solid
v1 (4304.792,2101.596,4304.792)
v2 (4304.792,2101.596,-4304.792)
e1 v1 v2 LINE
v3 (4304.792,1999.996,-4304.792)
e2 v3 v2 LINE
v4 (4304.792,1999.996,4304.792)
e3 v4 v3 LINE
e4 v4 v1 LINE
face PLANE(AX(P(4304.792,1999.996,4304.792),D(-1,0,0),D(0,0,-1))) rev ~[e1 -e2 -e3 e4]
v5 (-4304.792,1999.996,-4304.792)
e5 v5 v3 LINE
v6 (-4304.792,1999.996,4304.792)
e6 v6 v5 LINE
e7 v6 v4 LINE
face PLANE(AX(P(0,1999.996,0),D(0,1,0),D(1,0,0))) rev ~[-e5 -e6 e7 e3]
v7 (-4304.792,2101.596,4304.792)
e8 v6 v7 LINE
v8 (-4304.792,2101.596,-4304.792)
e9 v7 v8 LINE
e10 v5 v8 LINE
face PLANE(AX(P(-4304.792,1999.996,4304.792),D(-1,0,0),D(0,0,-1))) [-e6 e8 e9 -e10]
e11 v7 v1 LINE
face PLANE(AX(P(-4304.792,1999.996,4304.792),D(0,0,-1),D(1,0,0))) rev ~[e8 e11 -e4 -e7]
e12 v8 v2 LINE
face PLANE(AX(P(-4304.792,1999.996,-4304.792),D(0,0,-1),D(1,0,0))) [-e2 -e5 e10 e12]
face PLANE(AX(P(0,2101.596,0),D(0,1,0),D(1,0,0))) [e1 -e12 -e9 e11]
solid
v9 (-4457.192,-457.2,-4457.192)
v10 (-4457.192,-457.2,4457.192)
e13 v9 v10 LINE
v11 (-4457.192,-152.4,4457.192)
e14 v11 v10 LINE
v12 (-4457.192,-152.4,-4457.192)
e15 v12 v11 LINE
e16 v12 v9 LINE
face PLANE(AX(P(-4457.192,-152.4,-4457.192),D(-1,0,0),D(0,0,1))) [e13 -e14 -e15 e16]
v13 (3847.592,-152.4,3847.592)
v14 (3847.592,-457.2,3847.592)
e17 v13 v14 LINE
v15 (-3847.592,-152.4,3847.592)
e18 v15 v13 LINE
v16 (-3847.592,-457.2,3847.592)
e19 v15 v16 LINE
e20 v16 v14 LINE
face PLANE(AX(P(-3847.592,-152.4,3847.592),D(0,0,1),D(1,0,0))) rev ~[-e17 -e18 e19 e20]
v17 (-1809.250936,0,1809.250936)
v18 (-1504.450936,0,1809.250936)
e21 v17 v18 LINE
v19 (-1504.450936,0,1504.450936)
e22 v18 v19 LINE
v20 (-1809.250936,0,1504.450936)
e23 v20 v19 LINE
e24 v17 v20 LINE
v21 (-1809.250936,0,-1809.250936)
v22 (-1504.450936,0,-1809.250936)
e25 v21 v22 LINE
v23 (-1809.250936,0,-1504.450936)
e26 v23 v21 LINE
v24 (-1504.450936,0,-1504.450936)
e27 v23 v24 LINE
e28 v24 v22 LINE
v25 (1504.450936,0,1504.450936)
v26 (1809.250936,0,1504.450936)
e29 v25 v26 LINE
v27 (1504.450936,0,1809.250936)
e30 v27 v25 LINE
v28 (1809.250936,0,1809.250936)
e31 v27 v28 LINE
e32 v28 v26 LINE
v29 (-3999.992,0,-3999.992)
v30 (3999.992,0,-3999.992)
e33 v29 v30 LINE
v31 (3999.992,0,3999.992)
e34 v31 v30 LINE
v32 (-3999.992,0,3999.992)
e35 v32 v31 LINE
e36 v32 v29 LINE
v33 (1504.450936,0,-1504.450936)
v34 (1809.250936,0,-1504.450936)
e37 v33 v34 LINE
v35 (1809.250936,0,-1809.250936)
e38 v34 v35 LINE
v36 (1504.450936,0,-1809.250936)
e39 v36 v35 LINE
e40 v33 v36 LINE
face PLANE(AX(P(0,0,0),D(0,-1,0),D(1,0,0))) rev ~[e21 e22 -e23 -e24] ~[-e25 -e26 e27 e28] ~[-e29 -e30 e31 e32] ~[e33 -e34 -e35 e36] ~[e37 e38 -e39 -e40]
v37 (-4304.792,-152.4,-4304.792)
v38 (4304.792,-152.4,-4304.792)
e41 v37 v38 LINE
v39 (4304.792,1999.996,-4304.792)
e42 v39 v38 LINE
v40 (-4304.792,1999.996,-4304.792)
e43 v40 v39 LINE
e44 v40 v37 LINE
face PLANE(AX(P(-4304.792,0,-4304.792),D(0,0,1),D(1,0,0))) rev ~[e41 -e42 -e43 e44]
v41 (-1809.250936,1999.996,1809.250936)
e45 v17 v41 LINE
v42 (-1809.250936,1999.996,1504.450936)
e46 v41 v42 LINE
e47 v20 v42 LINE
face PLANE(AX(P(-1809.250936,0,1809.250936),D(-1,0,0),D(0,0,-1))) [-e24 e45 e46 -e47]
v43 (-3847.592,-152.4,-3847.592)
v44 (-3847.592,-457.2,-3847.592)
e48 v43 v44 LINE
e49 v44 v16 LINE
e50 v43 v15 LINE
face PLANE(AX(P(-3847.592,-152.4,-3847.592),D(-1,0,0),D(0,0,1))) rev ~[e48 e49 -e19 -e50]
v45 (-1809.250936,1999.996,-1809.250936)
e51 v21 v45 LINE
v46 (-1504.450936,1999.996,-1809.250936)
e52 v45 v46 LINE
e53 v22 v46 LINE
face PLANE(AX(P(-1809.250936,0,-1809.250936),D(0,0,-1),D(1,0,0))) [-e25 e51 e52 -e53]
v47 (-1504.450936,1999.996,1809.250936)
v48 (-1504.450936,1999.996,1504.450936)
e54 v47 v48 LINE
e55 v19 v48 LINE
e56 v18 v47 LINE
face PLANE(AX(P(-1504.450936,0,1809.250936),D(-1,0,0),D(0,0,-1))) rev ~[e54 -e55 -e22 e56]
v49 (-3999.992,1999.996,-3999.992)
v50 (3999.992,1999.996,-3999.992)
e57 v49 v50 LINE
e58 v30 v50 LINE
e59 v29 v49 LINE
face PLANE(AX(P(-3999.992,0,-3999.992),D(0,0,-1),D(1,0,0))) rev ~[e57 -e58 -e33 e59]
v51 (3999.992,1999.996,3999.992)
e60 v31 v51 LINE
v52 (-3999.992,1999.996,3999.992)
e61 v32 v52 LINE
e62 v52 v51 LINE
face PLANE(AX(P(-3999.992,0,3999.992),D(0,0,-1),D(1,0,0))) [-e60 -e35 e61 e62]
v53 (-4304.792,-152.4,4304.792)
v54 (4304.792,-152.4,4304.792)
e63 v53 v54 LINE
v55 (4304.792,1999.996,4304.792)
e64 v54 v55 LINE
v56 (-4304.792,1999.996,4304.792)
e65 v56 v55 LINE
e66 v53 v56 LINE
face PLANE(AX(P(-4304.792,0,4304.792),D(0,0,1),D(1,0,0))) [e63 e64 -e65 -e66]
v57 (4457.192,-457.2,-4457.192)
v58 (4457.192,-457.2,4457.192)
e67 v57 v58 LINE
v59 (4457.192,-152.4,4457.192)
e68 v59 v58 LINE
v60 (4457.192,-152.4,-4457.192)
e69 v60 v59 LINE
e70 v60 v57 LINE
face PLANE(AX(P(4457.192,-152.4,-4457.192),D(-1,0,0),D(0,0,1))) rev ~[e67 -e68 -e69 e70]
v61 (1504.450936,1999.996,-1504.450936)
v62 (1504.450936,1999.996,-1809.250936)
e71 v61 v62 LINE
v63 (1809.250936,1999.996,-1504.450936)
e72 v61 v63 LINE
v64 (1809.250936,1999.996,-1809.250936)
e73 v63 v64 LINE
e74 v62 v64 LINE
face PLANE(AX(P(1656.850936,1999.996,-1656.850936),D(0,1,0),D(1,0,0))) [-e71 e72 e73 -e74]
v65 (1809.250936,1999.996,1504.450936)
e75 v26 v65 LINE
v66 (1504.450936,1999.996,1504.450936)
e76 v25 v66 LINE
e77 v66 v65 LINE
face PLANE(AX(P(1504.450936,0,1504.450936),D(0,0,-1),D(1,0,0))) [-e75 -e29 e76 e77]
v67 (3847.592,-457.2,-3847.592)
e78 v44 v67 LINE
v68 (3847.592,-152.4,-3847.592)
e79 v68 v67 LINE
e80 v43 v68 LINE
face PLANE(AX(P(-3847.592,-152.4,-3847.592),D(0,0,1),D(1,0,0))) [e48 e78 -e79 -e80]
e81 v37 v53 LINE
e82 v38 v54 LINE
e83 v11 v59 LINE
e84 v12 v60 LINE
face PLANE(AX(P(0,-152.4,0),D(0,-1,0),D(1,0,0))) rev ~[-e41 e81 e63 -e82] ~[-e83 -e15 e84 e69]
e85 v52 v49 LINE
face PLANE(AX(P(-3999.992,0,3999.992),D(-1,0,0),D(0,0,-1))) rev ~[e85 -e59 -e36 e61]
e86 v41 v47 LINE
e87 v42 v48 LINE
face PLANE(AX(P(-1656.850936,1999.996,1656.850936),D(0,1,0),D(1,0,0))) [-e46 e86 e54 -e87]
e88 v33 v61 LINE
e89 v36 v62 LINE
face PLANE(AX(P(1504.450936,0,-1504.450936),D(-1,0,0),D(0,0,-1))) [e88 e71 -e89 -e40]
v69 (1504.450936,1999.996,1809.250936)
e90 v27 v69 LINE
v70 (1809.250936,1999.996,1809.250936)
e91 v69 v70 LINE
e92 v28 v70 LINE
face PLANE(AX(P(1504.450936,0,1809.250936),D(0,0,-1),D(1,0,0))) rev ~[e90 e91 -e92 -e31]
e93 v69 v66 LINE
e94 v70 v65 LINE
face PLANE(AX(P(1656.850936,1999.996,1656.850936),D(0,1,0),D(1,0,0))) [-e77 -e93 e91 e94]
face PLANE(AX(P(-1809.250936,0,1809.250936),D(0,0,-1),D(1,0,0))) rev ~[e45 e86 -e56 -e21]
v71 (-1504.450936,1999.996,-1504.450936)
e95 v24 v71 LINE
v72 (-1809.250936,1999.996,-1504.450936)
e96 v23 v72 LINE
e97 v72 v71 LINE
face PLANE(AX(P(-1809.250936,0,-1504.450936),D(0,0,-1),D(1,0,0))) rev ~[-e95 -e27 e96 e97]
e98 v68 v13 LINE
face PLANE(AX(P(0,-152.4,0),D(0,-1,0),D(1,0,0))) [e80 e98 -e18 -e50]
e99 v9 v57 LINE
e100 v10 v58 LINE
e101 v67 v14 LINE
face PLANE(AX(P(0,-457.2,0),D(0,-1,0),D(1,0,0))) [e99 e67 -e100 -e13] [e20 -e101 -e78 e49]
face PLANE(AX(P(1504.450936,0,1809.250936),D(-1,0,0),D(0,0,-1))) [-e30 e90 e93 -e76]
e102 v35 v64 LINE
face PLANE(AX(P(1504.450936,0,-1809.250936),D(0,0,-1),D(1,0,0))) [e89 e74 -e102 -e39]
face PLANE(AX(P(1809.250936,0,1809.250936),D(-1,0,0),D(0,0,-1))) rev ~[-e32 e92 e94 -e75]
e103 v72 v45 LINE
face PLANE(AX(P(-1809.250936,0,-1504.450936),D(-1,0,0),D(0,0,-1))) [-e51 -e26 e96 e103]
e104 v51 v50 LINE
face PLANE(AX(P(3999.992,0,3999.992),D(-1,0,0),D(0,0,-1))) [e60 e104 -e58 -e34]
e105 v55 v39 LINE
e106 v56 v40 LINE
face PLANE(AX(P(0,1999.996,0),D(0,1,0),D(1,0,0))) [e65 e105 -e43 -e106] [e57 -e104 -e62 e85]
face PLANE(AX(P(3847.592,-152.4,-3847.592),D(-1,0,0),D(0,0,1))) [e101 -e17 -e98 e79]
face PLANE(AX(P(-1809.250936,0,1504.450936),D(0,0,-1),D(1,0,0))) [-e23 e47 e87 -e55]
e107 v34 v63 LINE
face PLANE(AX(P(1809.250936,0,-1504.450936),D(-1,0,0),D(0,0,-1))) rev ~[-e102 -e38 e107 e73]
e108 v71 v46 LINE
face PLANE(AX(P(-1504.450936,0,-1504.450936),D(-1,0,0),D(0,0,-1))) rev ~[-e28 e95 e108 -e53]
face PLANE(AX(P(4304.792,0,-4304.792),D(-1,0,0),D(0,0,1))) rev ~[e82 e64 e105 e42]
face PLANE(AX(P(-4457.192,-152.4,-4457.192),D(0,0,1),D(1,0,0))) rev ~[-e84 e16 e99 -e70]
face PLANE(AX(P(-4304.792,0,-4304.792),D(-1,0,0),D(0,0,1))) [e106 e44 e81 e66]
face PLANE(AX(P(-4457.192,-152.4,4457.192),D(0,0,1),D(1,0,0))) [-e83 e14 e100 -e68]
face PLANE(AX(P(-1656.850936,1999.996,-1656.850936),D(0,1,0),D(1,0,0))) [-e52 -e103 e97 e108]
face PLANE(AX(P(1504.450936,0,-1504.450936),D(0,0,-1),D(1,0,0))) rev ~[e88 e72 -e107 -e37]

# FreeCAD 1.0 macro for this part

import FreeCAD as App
import Part
import Sketcher
Q = App.Units.Quantity

doc = App.newDocument("Part")
body = doc.addObject("PartDesign::Body", "Body")

sketch1 = doc.addObject("Sketcher::SketchObject", "Sketch")
body.addObject(sketch1)
sketch1.AttachmentSupport = (doc.XZ_Plane, [""])
sketch1.MapMode = "FlatFace"
sketch1.addGeometry([
    Part.LineSegment(App.Vector(-4305, -4305, 0), App.Vector(-4305, 4305, 0)),
    Part.LineSegment(App.Vector(-4305, 4305, 0), App.Vector(4305, 4305, 0)),
    Part.LineSegment(App.Vector(4305, 4305, 0), App.Vector(4305, -4305, 0)),
    Part.LineSegment(App.Vector(4305, -4305, 0), App.Vector(-4305, -4305, 0)),
    Part.LineSegment(App.Vector(4000, 4000, 0), App.Vector(-4000, 4000, 0)),
    Part.LineSegment(App.Vector(-4000, 4000, 0), App.Vector(-4000, -4000, 0)),
    Part.LineSegment(App.Vector(-4000, -4000, 0), App.Vector(4000, -4000, 0)),
    Part.LineSegment(App.Vector(4000, -4000, 0), App.Vector(4000, 4000, 0)),
], False)
sketch1.addConstraint([
    Sketcher.Constraint("Coincident", 0, 2, 1, 1),
    Sketcher.Constraint("Coincident", 1, 2, 2, 1),
    Sketcher.Constraint("Coincident", 2, 2, 3, 1),
    Sketcher.Constraint("Coincident", 3, 2, 0, 1),
    Sketcher.Constraint("Coincident", 4, 2, 5, 1),
    Sketcher.Constraint("Coincident", 5, 2, 6, 1),
    Sketcher.Constraint("Coincident", 6, 2, 7, 1),
    Sketcher.Constraint("Coincident", 7, 2, 4, 1),
    Sketcher.Constraint("Vertical", 0),
    Sketcher.Constraint("Horizontal", 1),
    Sketcher.Constraint("Vertical", 2),
    Sketcher.Constraint("Horizontal", 3),
    Sketcher.Constraint("Horizontal", 4),
    Sketcher.Constraint("Vertical", 5),
    Sketcher.Constraint("Horizontal", 6),
    Sketcher.Constraint("Vertical", 7),
    Sketcher.Constraint("Symmetric", 0, 2, 2, 2, -1, 1),
    Sketcher.Constraint("Symmetric", 4, 2, 6, 2, -1, 1),
    Sketcher.Constraint("Equal", 3, 0),
    Sketcher.Constraint("Equal", 6, 5),
    Sketcher.Constraint("DistanceX", 0, 2, 4, 2, Q("12 in")),
    Sketcher.Constraint("DistanceX", 1, 1, 1, 2, Q("338.96 in")),
])
pad1 = doc.addObject("PartDesign::Pad", "Pad")
body.addObject(pad1)
pad1.Profile = sketch1
pad1.Length = Q("78.74 in")
pad1.Reversed = True

sketch2 = doc.addObject("Sketcher::SketchObject", "Sketch001")
body.addObject(sketch2)
sketch2.AttachmentSupport = (doc.XZ_Plane, [""])
sketch2.MapMode = "FlatFace"
sketch2.addGeometry([
    Part.LineSegment(App.Vector(-4305, 4305, 0), App.Vector(-4305, -4305, 0)),
    Part.LineSegment(App.Vector(-4305, -4305, 0), App.Vector(4305, -4305, 0)),
    Part.LineSegment(App.Vector(4305, -4305, 0), App.Vector(4305, 4305, 0)),
    Part.LineSegment(App.Vector(4305, 4305, 0), App.Vector(-4305, 4305, 0)),
], False)
sketch2.addConstraint([
    Sketcher.Constraint("Coincident", 0, 2, 1, 1),
    Sketcher.Constraint("Coincident", 1, 2, 2, 1),
    Sketcher.Constraint("Coincident", 2, 2, 3, 1),
    Sketcher.Constraint("Coincident", 3, 2, 0, 1),
    Sketcher.Constraint("Vertical", 0),
    Sketcher.Constraint("Horizontal", 1),
    Sketcher.Constraint("Vertical", 2),
    Sketcher.Constraint("Horizontal", 3),
    Sketcher.Constraint("Symmetric", 0, 2, 2, 2, -1, 1),
    Sketcher.Constraint("Equal", 3, 0),
    Sketcher.Constraint("DistanceX", 1, 1, 1, 2, Q("338.96 in")),
])
pad2 = doc.addObject("PartDesign::Pad", "Pad001")
body.addObject(pad2)
pad2.Profile = sketch2
pad2.Length = Q("6 in")

sketch3 = doc.addObject("Sketcher::SketchObject", "Sketch002")
body.addObject(sketch3)
sketch3.AttachmentSupport = (doc.XZ_Plane, [""])
sketch3.MapMode = "FlatFace"
sketch3.AttachmentOffset = App.Placement(App.Vector(0, 0, 6 * 25.4), App.Rotation())
sketch3.addGeometry([
    Part.LineSegment(App.Vector(-4457, 4457, 0), App.Vector(-4457, -4457, 0)),
    Part.LineSegment(App.Vector(-4457, -4457, 0), App.Vector(4457, -4457, 0)),
    Part.LineSegment(App.Vector(4457, -4457, 0), App.Vector(4457, 4457, 0)),
    Part.LineSegment(App.Vector(4457, 4457, 0), App.Vector(-4457, 4457, 0)),
    Part.LineSegment(App.Vector(3848, -3848, 0), App.Vector(-3848, -3848, 0)),
    Part.LineSegment(App.Vector(-3848, -3848, 0), App.Vector(-3848, 3848, 0)),
    Part.LineSegment(App.Vector(-3848, 3848, 0), App.Vector(3848, 3848, 0)),
    Part.LineSegment(App.Vector(3848, 3848, 0), App.Vector(3848, -3848, 0)),
], False)
sketch3.addConstraint([
    Sketcher.Constraint("Coincident", 0, 2, 1, 1),
    Sketcher.Constraint("Coincident", 1, 2, 2, 1),
    Sketcher.Constraint("Coincident", 2, 2, 3, 1),
    Sketcher.Constraint("Coincident", 3, 2, 0, 1),
    Sketcher.Constraint("Coincident", 4, 2, 5, 1),
    Sketcher.Constraint("Coincident", 5, 2, 6, 1),
    Sketcher.Constraint("Coincident", 6, 2, 7, 1),
    Sketcher.Constraint("Coincident", 7, 2, 4, 1),
    Sketcher.Constraint("Vertical", 0),
    Sketcher.Constraint("Horizontal", 1),
    Sketcher.Constraint("Vertical", 2),
    Sketcher.Constraint("Horizontal", 3),
    Sketcher.Constraint("Horizontal", 4),
    Sketcher.Constraint("Vertical", 5),
    Sketcher.Constraint("Horizontal", 6),
    Sketcher.Constraint("Vertical", 7),
    Sketcher.Constraint("Symmetric", 0, 2, 2, 2, -1, 1),
    Sketcher.Constraint("Symmetric", 4, 2, 6, 2, -1, 1),
    Sketcher.Constraint("Equal", 3, 0),
    Sketcher.Constraint("Equal", 6, 5),
    Sketcher.Constraint("DistanceX", 0, 2, 4, 2, Q("24 in")),
    Sketcher.Constraint("DistanceX", 1, 1, 1, 2, Q("350.96 in")),
])
pad3 = doc.addObject("PartDesign::Pad", "Pad002")
body.addObject(pad3)
pad3.Profile = sketch3
pad3.Length = Q("12 in")

sketch4 = doc.addObject("Sketcher::SketchObject", "Sketch003")
body.addObject(sketch4)
sketch4.AttachmentSupport = (doc.XZ_Plane, [""])
sketch4.MapMode = "FlatFace"
sketch4.addGeometry([
    Part.LineSegment(App.Vector(1504, -1809, 0), App.Vector(1504, -1504, 0)),
    Part.LineSegment(App.Vector(1504, -1504, 0), App.Vector(1809, -1504, 0)),
    Part.LineSegment(App.Vector(1809, -1504, 0), App.Vector(1809, -1809, 0)),
    Part.LineSegment(App.Vector(1809, -1809, 0), App.Vector(1504, -1809, 0)),
    Part.LineSegment(App.Vector(-1809, -1809, 0), App.Vector(-1809, -1504, 0)),
    Part.LineSegment(App.Vector(-1809, -1504, 0), App.Vector(-1504, -1504, 0)),
    Part.LineSegment(App.Vector(-1504, -1504, 0), App.Vector(-1504, -1809, 0)),
    Part.LineSegment(App.Vector(-1504, -1809, 0), App.Vector(-1809, -1809, 0)),
    Part.LineSegment(App.Vector(1504, 1504, 0), App.Vector(1504, 1809, 0)),
    Part.LineSegment(App.Vector(1504, 1809, 0), App.Vector(1809, 1809, 0)),
    Part.LineSegment(App.Vector(1809, 1809, 0), App.Vector(1809, 1504, 0)),
    Part.LineSegment(App.Vector(1809, 1504, 0), App.Vector(1504, 1504, 0)),
    Part.LineSegment(App.Vector(-1809, 1504, 0), App.Vector(-1809, 1809, 0)),
    Part.LineSegment(App.Vector(-1809, 1809, 0), App.Vector(-1504, 1809, 0)),
    Part.LineSegment(App.Vector(-1504, 1809, 0), App.Vector(-1504, 1504, 0)),
    Part.LineSegment(App.Vector(-1504, 1504, 0), App.Vector(-1809, 1504, 0)),
], False)
sketch4.addConstraint([
    Sketcher.Constraint("Coincident", 0, 2, 1, 1),
    Sketcher.Constraint("Coincident", 1, 2, 2, 1),
    Sketcher.Constraint("Coincident", 2, 2, 3, 1),
    Sketcher.Constraint("Coincident", 3, 2, 0, 1),
    Sketcher.Constraint("Coincident", 4, 2, 5, 1),
    Sketcher.Constraint("Coincident", 5, 2, 6, 1),
    Sketcher.Constraint("Coincident", 6, 2, 7, 1),
    Sketcher.Constraint("Coincident", 7, 2, 4, 1),
    Sketcher.Constraint("Coincident", 8, 2, 9, 1),
    Sketcher.Constraint("Coincident", 9, 2, 10, 1),
    Sketcher.Constraint("Coincident", 10, 2, 11, 1),
    Sketcher.Constraint("Coincident", 11, 2, 8, 1),
    Sketcher.Constraint("Coincident", 12, 2, 13, 1),
    Sketcher.Constraint("Coincident", 13, 2, 14, 1),
    Sketcher.Constraint("Coincident", 14, 2, 15, 1),
    Sketcher.Constraint("Coincident", 15, 2, 12, 1),
    Sketcher.Constraint("Vertical", 0),
    Sketcher.Constraint("Horizontal", 1),
    Sketcher.Constraint("Vertical", 2),
    Sketcher.Constraint("Horizontal", 3),
    Sketcher.Constraint("Vertical", 4),
    Sketcher.Constraint("Horizontal", 5),
    Sketcher.Constraint("Vertical", 6),
    Sketcher.Constraint("Horizontal", 7),
    Sketcher.Constraint("Vertical", 8),
    Sketcher.Constraint("Horizontal", 9),
    Sketcher.Constraint("Vertical", 10),
    Sketcher.Constraint("Horizontal", 11),
    Sketcher.Constraint("Vertical", 12),
    Sketcher.Constraint("Horizontal", 13),
    Sketcher.Constraint("Vertical", 14),
    Sketcher.Constraint("Horizontal", 15),
    Sketcher.Constraint("Symmetric", 6, 2, 8, 2, -1, 1),
    Sketcher.Constraint("Symmetric", 4, 2, 10, 2, -1, 1),
    Sketcher.Constraint("Symmetric", 2, 2, 12, 2, -1, 1),
    Sketcher.Constraint("Symmetric", 0, 2, 14, 2, -1, 1),
    Sketcher.Constraint("Symmetric", 1, 2, 4, 2, -2),
    Sketcher.Constraint("Symmetric", 3, 2, 6, 2, -2),
    Sketcher.Constraint("Equal", 15, 0),
    Sketcher.Constraint("DistanceX", 1, 1, 1, 2, Q("12 in")),
    Sketcher.Constraint("DistanceX", 4, 2, 0, 2, 3313.701872),
    Sketcher.Constraint("DistanceY", 0, 2, 8, 2, 3313.701872),
])
pad4 = doc.addObject("PartDesign::Pad", "Pad003")
body.addObject(pad4)
pad4.Profile = sketch4
pad4.Length = Q("78.74 in")
pad4.Reversed = True
body2 = doc.addObject("PartDesign::Body", "Body001")

sketch5 = doc.addObject("Sketcher::SketchObject", "Sketch004")
body2.addObject(sketch5)
sketch5.AttachmentSupport = (doc.getObject("XZ_Plane001"), [""])
sketch5.MapMode = "FlatFace"
sketch5.AttachmentOffset = App.Placement(App.Vector(0, 0, -78.74 * 25.4), App.Rotation())
sketch5.addGeometry([
    Part.LineSegment(App.Vector(-4305, -4305, 0), App.Vector(-4305, 4305, 0)),
    Part.LineSegment(App.Vector(-4305, 4305, 0), App.Vector(4305, 4305, 0)),
    Part.LineSegment(App.Vector(4305, 4305, 0), App.Vector(4305, -4305, 0)),
    Part.LineSegment(App.Vector(4305, -4305, 0), App.Vector(-4305, -4305, 0)),
], False)
sketch5.addConstraint([
    Sketcher.Constraint("Coincident", 0, 2, 1, 1),
    Sketcher.Constraint("Coincident", 1, 2, 2, 1),
    Sketcher.Constraint("Coincident", 2, 2, 3, 1),
    Sketcher.Constraint("Coincident", 3, 2, 0, 1),
    Sketcher.Constraint("Vertical", 0),
    Sketcher.Constraint("Horizontal", 1),
    Sketcher.Constraint("Vertical", 2),
    Sketcher.Constraint("Horizontal", 3),
    Sketcher.Constraint("Symmetric", 0, 2, 2, 2, -1, 1),
    Sketcher.Constraint("Equal", 3, 0),
    Sketcher.Constraint("DistanceX", 1, 1, 1, 2, Q("338.96 in")),
])
pad5 = doc.addObject("PartDesign::Pad", "Pad004")
body2.addObject(pad5)
pad5.Profile = sketch5
pad5.Length = Q("4 in")
pad5.Reversed = True

doc.recompute()
